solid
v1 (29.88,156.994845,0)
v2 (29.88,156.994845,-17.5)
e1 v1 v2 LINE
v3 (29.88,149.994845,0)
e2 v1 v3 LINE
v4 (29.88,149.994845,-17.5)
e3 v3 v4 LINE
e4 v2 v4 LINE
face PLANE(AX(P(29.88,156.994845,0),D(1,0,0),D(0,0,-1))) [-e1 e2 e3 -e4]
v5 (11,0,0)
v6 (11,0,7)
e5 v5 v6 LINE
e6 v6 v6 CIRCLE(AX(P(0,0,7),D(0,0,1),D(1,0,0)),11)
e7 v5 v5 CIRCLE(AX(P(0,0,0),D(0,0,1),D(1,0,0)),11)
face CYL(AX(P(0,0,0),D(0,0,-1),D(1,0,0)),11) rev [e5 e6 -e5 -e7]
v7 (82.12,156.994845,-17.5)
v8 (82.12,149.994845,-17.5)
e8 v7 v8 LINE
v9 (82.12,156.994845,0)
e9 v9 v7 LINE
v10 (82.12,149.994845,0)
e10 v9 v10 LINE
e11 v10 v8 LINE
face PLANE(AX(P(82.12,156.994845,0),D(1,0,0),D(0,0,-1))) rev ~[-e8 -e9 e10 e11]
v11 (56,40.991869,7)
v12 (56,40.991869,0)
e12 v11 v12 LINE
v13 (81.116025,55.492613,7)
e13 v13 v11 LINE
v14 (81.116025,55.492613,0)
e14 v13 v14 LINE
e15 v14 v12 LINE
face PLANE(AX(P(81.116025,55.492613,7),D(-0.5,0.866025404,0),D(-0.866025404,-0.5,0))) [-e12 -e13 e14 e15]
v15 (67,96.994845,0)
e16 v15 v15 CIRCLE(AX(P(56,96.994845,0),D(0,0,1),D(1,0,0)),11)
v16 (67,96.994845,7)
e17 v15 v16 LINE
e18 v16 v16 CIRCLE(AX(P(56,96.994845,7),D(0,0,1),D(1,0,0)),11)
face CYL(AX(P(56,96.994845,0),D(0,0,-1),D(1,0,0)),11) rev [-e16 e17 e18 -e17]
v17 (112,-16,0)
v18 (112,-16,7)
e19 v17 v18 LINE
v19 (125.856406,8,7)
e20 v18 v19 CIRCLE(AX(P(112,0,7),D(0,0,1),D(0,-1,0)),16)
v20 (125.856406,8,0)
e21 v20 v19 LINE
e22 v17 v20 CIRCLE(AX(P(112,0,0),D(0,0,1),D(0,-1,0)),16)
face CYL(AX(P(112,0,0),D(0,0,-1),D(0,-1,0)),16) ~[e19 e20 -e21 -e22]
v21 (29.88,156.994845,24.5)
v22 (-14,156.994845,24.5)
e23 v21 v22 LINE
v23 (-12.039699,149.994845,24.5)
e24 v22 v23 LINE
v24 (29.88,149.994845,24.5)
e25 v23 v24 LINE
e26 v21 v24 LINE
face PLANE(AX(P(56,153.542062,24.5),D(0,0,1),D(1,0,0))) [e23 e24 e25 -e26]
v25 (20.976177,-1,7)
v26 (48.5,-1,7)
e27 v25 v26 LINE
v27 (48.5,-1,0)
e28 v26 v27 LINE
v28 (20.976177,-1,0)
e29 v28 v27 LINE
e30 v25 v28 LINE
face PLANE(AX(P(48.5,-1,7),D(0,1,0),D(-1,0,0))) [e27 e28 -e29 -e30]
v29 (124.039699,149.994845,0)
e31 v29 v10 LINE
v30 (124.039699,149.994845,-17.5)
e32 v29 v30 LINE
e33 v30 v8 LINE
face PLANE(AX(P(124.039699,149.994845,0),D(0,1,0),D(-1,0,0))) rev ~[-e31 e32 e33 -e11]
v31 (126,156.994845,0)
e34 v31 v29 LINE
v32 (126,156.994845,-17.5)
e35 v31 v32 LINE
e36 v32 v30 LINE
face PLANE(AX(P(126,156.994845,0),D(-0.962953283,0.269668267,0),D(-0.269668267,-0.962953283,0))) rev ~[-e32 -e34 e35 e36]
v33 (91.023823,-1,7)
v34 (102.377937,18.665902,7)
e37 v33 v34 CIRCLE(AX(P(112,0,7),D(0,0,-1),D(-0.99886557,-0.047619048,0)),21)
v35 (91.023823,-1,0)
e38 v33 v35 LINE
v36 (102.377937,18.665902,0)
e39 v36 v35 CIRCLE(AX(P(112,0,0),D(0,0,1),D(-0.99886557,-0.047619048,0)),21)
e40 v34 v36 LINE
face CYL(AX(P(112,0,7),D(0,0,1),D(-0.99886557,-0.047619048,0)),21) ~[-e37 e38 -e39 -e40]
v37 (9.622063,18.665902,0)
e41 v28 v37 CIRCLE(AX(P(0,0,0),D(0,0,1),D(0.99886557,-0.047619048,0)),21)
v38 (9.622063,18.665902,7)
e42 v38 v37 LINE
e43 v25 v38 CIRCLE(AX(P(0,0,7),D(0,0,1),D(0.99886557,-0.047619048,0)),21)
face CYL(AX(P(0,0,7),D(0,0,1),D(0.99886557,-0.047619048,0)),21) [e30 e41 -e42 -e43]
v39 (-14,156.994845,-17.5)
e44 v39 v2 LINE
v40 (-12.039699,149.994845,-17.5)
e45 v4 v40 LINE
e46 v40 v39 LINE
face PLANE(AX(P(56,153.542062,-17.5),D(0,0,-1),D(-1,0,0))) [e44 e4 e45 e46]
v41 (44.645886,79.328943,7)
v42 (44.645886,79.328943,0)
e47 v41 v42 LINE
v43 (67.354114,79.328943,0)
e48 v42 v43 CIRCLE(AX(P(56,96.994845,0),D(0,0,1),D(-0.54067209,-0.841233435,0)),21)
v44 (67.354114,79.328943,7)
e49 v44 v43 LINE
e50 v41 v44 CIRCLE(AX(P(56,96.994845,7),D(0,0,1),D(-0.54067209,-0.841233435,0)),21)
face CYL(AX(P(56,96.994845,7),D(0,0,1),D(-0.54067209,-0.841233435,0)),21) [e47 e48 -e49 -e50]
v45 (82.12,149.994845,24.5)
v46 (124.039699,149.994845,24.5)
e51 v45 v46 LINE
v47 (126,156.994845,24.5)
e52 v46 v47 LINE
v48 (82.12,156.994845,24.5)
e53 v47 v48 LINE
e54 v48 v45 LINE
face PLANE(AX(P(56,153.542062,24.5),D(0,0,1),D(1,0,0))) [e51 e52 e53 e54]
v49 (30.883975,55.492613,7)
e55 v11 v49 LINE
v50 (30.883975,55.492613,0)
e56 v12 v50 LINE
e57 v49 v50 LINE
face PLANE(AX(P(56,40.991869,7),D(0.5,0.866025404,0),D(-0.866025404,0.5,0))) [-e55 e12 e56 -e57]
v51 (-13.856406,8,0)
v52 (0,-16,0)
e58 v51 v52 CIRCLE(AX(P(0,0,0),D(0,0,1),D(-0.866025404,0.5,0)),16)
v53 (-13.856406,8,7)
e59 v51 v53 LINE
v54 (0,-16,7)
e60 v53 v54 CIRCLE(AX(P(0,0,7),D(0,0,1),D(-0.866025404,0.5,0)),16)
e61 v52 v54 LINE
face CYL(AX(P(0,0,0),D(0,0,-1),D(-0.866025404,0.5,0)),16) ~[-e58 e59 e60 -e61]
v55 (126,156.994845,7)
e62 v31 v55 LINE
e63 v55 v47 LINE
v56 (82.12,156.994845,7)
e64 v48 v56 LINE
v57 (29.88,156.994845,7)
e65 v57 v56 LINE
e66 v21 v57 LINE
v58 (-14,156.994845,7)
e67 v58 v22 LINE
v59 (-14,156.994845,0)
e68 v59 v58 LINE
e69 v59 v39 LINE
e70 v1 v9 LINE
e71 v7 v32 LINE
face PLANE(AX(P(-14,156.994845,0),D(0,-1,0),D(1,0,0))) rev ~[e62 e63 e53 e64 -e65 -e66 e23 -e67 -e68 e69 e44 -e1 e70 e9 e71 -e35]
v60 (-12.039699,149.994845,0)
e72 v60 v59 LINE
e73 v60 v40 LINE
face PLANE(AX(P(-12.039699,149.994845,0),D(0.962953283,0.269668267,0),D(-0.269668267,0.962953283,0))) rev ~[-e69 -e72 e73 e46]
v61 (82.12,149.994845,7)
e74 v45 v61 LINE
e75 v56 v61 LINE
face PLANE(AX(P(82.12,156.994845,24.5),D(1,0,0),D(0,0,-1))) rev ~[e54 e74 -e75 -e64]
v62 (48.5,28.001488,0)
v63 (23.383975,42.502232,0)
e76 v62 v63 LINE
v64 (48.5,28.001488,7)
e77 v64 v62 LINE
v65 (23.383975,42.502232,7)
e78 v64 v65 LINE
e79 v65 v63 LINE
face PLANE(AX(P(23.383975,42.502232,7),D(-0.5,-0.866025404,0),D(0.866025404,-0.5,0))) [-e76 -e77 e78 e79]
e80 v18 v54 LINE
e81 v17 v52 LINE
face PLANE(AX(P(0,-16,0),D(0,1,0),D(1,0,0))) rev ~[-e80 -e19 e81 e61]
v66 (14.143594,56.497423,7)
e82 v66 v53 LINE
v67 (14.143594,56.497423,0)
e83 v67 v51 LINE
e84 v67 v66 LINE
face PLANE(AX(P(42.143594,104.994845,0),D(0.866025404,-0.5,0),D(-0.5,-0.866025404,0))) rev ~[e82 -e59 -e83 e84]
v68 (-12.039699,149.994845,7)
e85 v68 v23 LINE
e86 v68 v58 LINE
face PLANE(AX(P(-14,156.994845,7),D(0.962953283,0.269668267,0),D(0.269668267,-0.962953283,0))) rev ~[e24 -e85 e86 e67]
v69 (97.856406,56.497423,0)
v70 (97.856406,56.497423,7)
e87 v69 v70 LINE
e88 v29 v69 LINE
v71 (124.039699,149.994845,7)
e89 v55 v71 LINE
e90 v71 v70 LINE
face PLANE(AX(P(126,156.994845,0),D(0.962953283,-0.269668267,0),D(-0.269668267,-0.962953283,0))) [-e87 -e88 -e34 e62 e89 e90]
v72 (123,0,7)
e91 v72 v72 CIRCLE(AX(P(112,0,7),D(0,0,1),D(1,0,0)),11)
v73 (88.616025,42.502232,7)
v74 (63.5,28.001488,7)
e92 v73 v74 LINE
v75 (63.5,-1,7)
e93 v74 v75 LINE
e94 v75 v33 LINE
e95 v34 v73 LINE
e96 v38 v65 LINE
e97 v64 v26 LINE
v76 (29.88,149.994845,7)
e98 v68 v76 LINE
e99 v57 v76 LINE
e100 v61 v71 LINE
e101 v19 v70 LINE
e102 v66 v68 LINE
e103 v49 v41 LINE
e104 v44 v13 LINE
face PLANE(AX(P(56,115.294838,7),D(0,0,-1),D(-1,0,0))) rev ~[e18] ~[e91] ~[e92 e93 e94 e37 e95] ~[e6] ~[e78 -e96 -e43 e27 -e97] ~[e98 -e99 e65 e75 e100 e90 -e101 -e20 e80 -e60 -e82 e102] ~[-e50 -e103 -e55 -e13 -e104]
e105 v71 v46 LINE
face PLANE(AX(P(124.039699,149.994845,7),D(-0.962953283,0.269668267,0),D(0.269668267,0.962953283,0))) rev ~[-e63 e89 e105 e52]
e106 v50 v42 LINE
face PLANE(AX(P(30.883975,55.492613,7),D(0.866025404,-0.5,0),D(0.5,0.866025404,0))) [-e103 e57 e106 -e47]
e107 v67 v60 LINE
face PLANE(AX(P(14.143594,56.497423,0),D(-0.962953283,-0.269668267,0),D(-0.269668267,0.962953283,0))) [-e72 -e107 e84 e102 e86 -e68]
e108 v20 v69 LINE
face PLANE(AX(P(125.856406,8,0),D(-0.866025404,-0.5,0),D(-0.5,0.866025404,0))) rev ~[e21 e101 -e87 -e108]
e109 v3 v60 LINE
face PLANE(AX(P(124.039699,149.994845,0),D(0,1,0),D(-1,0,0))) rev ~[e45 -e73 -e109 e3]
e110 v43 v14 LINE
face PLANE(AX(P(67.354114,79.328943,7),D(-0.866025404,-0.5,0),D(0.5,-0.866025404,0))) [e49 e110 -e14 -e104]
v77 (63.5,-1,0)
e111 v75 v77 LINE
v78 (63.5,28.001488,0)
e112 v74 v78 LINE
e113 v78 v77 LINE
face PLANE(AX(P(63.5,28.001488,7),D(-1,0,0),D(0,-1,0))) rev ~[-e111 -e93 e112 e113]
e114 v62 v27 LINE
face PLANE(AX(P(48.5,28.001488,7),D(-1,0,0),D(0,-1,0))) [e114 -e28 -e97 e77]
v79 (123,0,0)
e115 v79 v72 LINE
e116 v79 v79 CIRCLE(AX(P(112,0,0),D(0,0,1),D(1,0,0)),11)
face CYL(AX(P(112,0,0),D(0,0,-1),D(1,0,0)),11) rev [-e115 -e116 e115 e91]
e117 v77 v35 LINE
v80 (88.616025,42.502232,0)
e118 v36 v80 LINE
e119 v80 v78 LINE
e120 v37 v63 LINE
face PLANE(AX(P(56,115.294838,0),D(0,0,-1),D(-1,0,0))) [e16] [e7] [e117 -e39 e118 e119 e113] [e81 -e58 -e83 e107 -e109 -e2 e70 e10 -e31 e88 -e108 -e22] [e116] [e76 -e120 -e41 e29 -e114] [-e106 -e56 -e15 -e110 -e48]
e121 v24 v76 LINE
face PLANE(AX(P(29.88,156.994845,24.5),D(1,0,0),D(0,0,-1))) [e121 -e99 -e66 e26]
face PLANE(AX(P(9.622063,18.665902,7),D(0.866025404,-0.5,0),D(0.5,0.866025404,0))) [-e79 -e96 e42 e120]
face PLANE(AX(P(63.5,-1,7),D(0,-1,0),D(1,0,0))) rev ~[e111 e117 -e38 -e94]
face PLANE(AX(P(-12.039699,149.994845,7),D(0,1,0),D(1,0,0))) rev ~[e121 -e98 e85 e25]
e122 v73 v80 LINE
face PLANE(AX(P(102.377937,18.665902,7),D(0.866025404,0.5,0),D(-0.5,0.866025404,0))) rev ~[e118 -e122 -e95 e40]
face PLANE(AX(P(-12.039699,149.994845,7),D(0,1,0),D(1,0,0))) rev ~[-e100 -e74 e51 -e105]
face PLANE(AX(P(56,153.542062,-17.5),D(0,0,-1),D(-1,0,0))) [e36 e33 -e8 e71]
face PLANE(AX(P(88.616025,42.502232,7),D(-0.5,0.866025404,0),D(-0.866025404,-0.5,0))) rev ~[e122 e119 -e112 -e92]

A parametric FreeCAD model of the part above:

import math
import FreeCAD as App
import Part
import Sketcher
from FreeCAD import Vector
Q = App.Units.Quantity

doc = App.newDocument("Part")
params = doc.addObject("Spreadsheet::Sheet", "Params")
for row, (alias, value) in enumerate([
    ("sketch1_diameter", "22 mm"),
    ("sketch1_radius", "16 mm"),
    ("sketch1_width", "112 mm"),
    ("pad1_length", "7 mm"),
    ("sketch2_radius", "21 mm"),
    ("sketch3_radius", "16 mm"),
    ("sketch3_width", "140 mm"),
    ("sketch3_length", "56 mm"),
    ("pad2_length", "7 mm"),
    ("sketch4_width", "140 mm"),
    ("pad3_length", "17.5 mm"),
    ("sketch5_width", "140 mm"),
    ("pad4_length", "17.5 mm"),
    ("sketch6_height", "17.5 mm"),
    ("sketch6_width", "52.24 mm"),
], start=1):
    params.set(f"A{row}", alias)
    params.set(f"B{row}", "=" + value)
    params.setAlias(f"B{row}", alias)

body = doc.addObject("PartDesign::Body", "Body")

sketch1 = doc.addObject("Sketcher::SketchObject", "Sketch")
body.addObject(sketch1)
sketch1.AttachmentSupport = (doc.XY_Plane, [""])
sketch1.MapMode = "FlatFace"
sketch1.addGeometry([
    Part.LineSegment(Vector(42, 105, 0), Vector(-14, 8, 0)),
    Part.ArcOfCircle(Part.Circle(Vector(0, 0, 0), Vector(0, 0, 1), 16), math.radians(150), math.radians(270)),
    Part.LineSegment(Vector(0, -16, 0), Vector(112, -16, 0)),
    Part.ArcOfCircle(Part.Circle(Vector(112, 0, 0), Vector(0, 0, 1), 16), math.radians(-90), math.radians(30)),
    Part.LineSegment(Vector(126, 8, 0), Vector(70, 105, 0)),
    Part.ArcOfCircle(Part.Circle(Vector(56, 97, 0), Vector(0, 0, 1), 16), math.radians(30), math.radians(150)),
    Part.Circle(Vector(0, 0, 0), Vector(0, 0, 1), 11),
    Part.Circle(Vector(112, 0, 0), Vector(0, 0, 1), 11),
    Part.Circle(Vector(56, 97, 0), Vector(0, 0, 1), 11),
], False)
sketch1.addConstraint([
    Sketcher.Constraint("Tangent", 0, 2, 1, 1),
    Sketcher.Constraint("Tangent", 1, 2, 2, 1),
    Sketcher.Constraint("Tangent", 2, 2, 3, 1),
    Sketcher.Constraint("Tangent", 3, 2, 4, 1),
    Sketcher.Constraint("Tangent", 4, 2, 5, 1),
    Sketcher.Constraint("Tangent", 5, 2, 0, 1),
    Sketcher.Constraint("Horizontal", 2),
    Sketcher.Constraint("Coincident", 1, 3, -1, 1),
    Sketcher.Constraint("Coincident", 6, 3, -1, 1),
    Sketcher.Constraint("Coincident", 7, 3, 3, 3),
    Sketcher.Constraint("Coincident", 8, 3, 5, 3),
    Sketcher.Constraint("Equal", 1, 3),
    Sketcher.Constraint("Equal", 3, 5),
    Sketcher.Constraint("Equal", 6, 7),
    Sketcher.Constraint("Equal", 7, 8),
    Sketcher.Constraint("Horizontal", 0, 2, 3, 2),
    Sketcher.Constraint("Diameter", 6, Q("22 mm")),
    Sketcher.Constraint("Radius", 1, Q("16 mm")),
    Sketcher.Constraint("DistanceX", 2, 1, 2, 2, Q("112 mm")),
    Sketcher.Constraint("Angle", 0, Q("-120 deg")),
])
sketch1.setExpression("Constraints[16]", "Params.sketch1_diameter")
sketch1.setExpression("Constraints[17]", "Params.sketch1_radius")
sketch1.setExpression("Constraints[18]", "Params.sketch1_width")
pad1 = doc.addObject("PartDesign::Pad", "Pad")
body.addObject(pad1)
pad1.Profile = sketch1
pad1.setExpression("Length", "Params.pad1_length")

sketch2 = doc.addObject("Sketcher::SketchObject", "Sketch001")
body.addObject(sketch2)
sketch2.AttachmentSupport = (doc.XY_Plane, [""])
sketch2.MapMode = "FlatFace"
sketch2.AttachmentOffset = App.Placement(Vector(0, 0, 7), App.Rotation())
sketch2.addGeometry([
    Part.LineSegment(Vector(23, 43, 0), Vector(10, 19, 0)),
    Part.ArcOfCircle(Part.Circle(Vector(0, 0, 0), Vector(0, 0, 1), 21), math.radians(-3), math.radians(63)),
    Part.LineSegment(Vector(21, -1, 0), Vector(48, -1, 0)),
    Part.LineSegment(Vector(48, -1, 0), Vector(48, 28, 0)),
    Part.LineSegment(Vector(48, 28, 0), Vector(23, 43, 0)),
    Part.LineSegment(Vector(64, -1, 0), Vector(91, -1, 0)),
    Part.ArcOfCircle(Part.Circle(Vector(112, 0, 0), Vector(0, 0, 1), 21), math.radians(117), math.radians(183)),
    Part.LineSegment(Vector(102, 19, 0), Vector(89, 43, 0)),
    Part.LineSegment(Vector(89, 43, 0), Vector(64, 28, 0)),
    Part.LineSegment(Vector(64, 28, 0), Vector(64, -1, 0)),
    Part.LineSegment(Vector(45, 79, 0), Vector(31, 55, 0)),
    Part.LineSegment(Vector(31, 55, 0), Vector(56, 41, 0)),
    Part.LineSegment(Vector(56, 41, 0), Vector(81, 55, 0)),
    Part.LineSegment(Vector(81, 55, 0), Vector(67, 79, 0)),
    Part.ArcOfCircle(Part.Circle(Vector(56, 97, 0), Vector(0, 0, 1), 21), math.radians(-123), math.radians(-57)),
], False)
sketch2.addConstraint([
    Sketcher.Constraint("Coincident", 0, 2, 1, 2),
    Sketcher.Constraint("Coincident", 1, 1, 2, 1),
    Sketcher.Constraint("Coincident", 2, 2, 3, 1),
    Sketcher.Constraint("Coincident", 3, 2, 4, 1),
    Sketcher.Constraint("Coincident", 4, 2, 0, 1),
    Sketcher.Constraint("Coincident", 5, 2, 6, 2),
    Sketcher.Constraint("Coincident", 6, 1, 7, 1),
    Sketcher.Constraint("Coincident", 7, 2, 8, 1),
    Sketcher.Constraint("Coincident", 8, 2, 9, 1),
    Sketcher.Constraint("Coincident", 9, 2, 5, 1),
    Sketcher.Constraint("Coincident", 10, 2, 11, 1),
    Sketcher.Constraint("Coincident", 11, 2, 12, 1),
    Sketcher.Constraint("Coincident", 12, 2, 13, 1),
    Sketcher.Constraint("Coincident", 13, 2, 14, 2),
    Sketcher.Constraint("Coincident", 14, 1, 10, 1),
    Sketcher.Constraint("Horizontal", 2),
    Sketcher.Constraint("Vertical", 3),
    Sketcher.Constraint("Horizontal", 5),
    Sketcher.Constraint("Vertical", 9),
    Sketcher.Constraint("Coincident", 1, 3, -1, 1),
    Sketcher.Constraint("Equal", 1, 6),
    Sketcher.Constraint("Equal", 6, 14),
    Sketcher.Constraint("PointOnObject", 6, 3, -1),
    Sketcher.Constraint("Perpendicular", 0, 4),
    Sketcher.Constraint("Perpendicular", 7, 8),
    Sketcher.Constraint("Perpendicular", 4, 10),
    Sketcher.Constraint("Perpendicular", 10, 11),
    Sketcher.Constraint("Parallel", 8, 12),
    Sketcher.Constraint("Perpendicular", 12, 13),
    Sketcher.Constraint("Horizontal", 2, 2, 5, 2),
    Sketcher.Constraint("Horizontal", 0, 2, 6, 1),
    Sketcher.Constraint("Horizontal", 4, 2, 7, 2),
    Sketcher.Constraint("Horizontal", 3, 2, 8, 2),
    Sketcher.Constraint("Horizontal", 10, 2, 12, 2),
    Sketcher.Constraint("Horizontal", 13, 2, 14, 1),
    Sketcher.Constraint("Vertical", 14, 3, 11, 2),
    Sketcher.Constraint("Equal", 7, 10),
    Sketcher.Constraint("Equal", 8, 11),
    Sketcher.Constraint("Radius", 1, Q("21 mm")),
    Sketcher.Constraint("Angle", 0, Q("-120 deg")),
    Sketcher.Constraint("DistanceX", -1, 1, 6, 3, Q("112 mm")),
    Sketcher.Constraint("DistanceX", -1, 1, 14, 3, Q("56 mm")),
    Sketcher.Constraint("DistanceY", 1, 1, -1, 1, Q("1 mm")),
    Sketcher.Constraint("DistanceX", 3, 2, 8, 2, Q("15 mm")),
    Sketcher.Constraint("DistanceY", 3, 1, 3, 2, Q("29.001488 mm")),
    Sketcher.Constraint("Distance", 4, Q("29.001488 mm")),
    Sketcher.Constraint("DistanceY", -1, 1, 11, 2, Q("40.991869 mm")),
])
sketch2.setExpression("Constraints[38]", "Params.sketch2_radius")
pocket1 = doc.addObject("PartDesign::Pocket", "Pocket")
body.addObject(pocket1)
pocket1.Profile = sketch2
pocket1.Type = "ThroughAll"

sketch3 = doc.addObject("Sketcher::SketchObject", "Sketch002")
body.addObject(sketch3)
sketch3.AttachmentSupport = (doc.XY_Plane, [""])
sketch3.MapMode = "FlatFace"
sketch3.addGeometry([
    Part.LineSegment(Vector(126, 157, 0), Vector(-14, 157, 0)),
    Part.LineSegment(Vector(-14, 157, 0), Vector(14, 56, 0)),
    Part.LineSegment(Vector(14, 56, 0), Vector(42, 105, 0)),
    Part.ArcOfCircle(Part.Circle(Vector(56, 97, 0), Vector(0, 0, 1), 16), math.radians(30), math.radians(150)),
    Part.LineSegment(Vector(70, 105, 0), Vector(98, 56, 0)),
    Part.LineSegment(Vector(98, 56, 0), Vector(126, 157, 0)),
], False)
sketch3.addConstraint([
    Sketcher.Constraint("Coincident", 0, 2, 1, 1),
    Sketcher.Constraint("Coincident", 1, 2, 2, 1),
    Sketcher.Constraint("Tangent", 2, 2, 3, 2),
    Sketcher.Constraint("Tangent", 3, 1, 4, 1),
    Sketcher.Constraint("Coincident", 4, 2, 5, 1),
    Sketcher.Constraint("Coincident", 5, 2, 0, 1),
    Sketcher.Constraint("Horizontal", 0),
    Sketcher.Constraint("Horizontal", 2, 2, 3, 1),
    Sketcher.Constraint("Horizontal", 1, 2, 4, 2),
    Sketcher.Constraint("Equal", 1, 5),
    Sketcher.Constraint("Radius", 3, Q("16 mm")),
    Sketcher.Constraint("DistanceX", 0, 2, 0, 1, Q("140 mm")),
    Sketcher.Constraint("Angle", 2, Q("60 deg")),
    Sketcher.Constraint("Distance", 2, Q("56 mm")),
    Sketcher.Constraint("DistanceX", -1, 1, 3, 3, Q("56 mm")),
    Sketcher.Constraint("DistanceY", 3, 3, 0, 2, Q("60 mm")),
    Sketcher.Constraint("DistanceY", -1, 1, 3, 3, Q("96.994845 mm")),
])
sketch3.setExpression("Constraints[10]", "Params.sketch3_radius")
sketch3.setExpression("Constraints[11]", "Params.sketch3_width")
sketch3.setExpression("Constraints[13]", "Params.sketch3_length")
pad2 = doc.addObject("PartDesign::Pad", "Pad001")
body.addObject(pad2)
pad2.Profile = sketch3
pad2.setExpression("Length", "Params.pad2_length")

sketch4 = doc.addObject("Sketcher::SketchObject", "Sketch003")
body.addObject(sketch4)
sketch4.AttachmentSupport = (doc.XY_Plane, [""])
sketch4.MapMode = "FlatFace"
sketch4.AttachmentOffset = App.Placement(Vector(0, 0, 7), App.Rotation())
sketch4.addGeometry([
    Part.LineSegment(Vector(-12, 150, 0), Vector(124, 150, 0)),
    Part.LineSegment(Vector(124, 150, 0), Vector(126, 157, 0)),
    Part.LineSegment(Vector(126, 157, 0), Vector(-14, 157, 0)),
    Part.LineSegment(Vector(-14, 157, 0), Vector(-12, 150, 0)),
], False)
sketch4.addConstraint([
    Sketcher.Constraint("Coincident", 0, 2, 1, 1),
    Sketcher.Constraint("Coincident", 1, 2, 2, 1),
    Sketcher.Constraint("Coincident", 2, 2, 3, 1),
    Sketcher.Constraint("Coincident", 3, 2, 0, 1),
    Sketcher.Constraint("Horizontal", 0),
    Sketcher.Constraint("Horizontal", 2),
    Sketcher.Constraint("Equal", 1, 3),
    Sketcher.Constraint("DistanceX", 2, 2, 2, 1, Q("140 mm")),
    Sketcher.Constraint("DistanceX", -1, 1, 1, 2, Q("126 mm")),
    Sketcher.Constraint("DistanceY", 0, 2, 1, 2, Q("7 mm")),
    Sketcher.Constraint("DistanceX", 0, 1, 0, 2, Q("136.079399 mm")),
    Sketcher.Constraint("DistanceY", -1, 1, 0, 2, Q("149.994845 mm")),
])
sketch4.setExpression("Constraints[7]", "Params.sketch4_width")
pad3 = doc.addObject("PartDesign::Pad", "Pad002")
body.addObject(pad3)
pad3.Profile = sketch4
pad3.setExpression("Length", "Params.pad3_length")

sketch5 = doc.addObject("Sketcher::SketchObject", "Sketch004")
body.addObject(sketch5)
sketch5.AttachmentSupport = (doc.XY_Plane, [""])
sketch5.MapMode = "FlatFace"
sketch5.addGeometry([
    Part.LineSegment(Vector(124, 150, 0), Vector(-12, 150, 0)),
    Part.LineSegment(Vector(-12, 150, 0), Vector(-14, 157, 0)),
    Part.LineSegment(Vector(-14, 157, 0), Vector(126, 157, 0)),
    Part.LineSegment(Vector(126, 157, 0), Vector(124, 150, 0)),
], False)
sketch5.addConstraint([
    Sketcher.Constraint("Coincident", 0, 2, 1, 1),
    Sketcher.Constraint("Coincident", 1, 2, 2, 1),
    Sketcher.Constraint("Coincident", 2, 2, 3, 1),
    Sketcher.Constraint("Coincident", 3, 2, 0, 1),
    Sketcher.Constraint("Horizontal", 0),
    Sketcher.Constraint("Horizontal", 2),
    Sketcher.Constraint("Equal", 1, 3),
    Sketcher.Constraint("DistanceX", 2, 1, 2, 2, Q("140 mm")),
    Sketcher.Constraint("DistanceX", 1, 2, -1, 1, Q("14 mm")),
    Sketcher.Constraint("DistanceY", 0, 2, 1, 2, Q("7 mm")),
    Sketcher.Constraint("DistanceX", 0, 2, 0, 1, Q("136.079399 mm")),
    Sketcher.Constraint("DistanceY", -1, 1, 0, 2, Q("149.994845 mm")),
])
sketch5.setExpression("Constraints[7]", "Params.sketch5_width")
pad4 = doc.addObject("PartDesign::Pad", "Pad003")
body.addObject(pad4)
pad4.Profile = sketch5
pad4.setExpression("Length", "Params.pad4_length")
pad4.Reversed = True

sketch6 = doc.addObject("Sketcher::SketchObject", "Sketch005")
body.addObject(sketch6)
sketch6.AttachmentSupport = (doc.XZ_Plane, [""])
sketch6.MapMode = "FlatFace"
sketch6.AttachmentOffset = App.Placement(Vector(0, 0, -156.994845), App.Rotation())
sketch6.addGeometry([
    Part.LineSegment(Vector(30, 7, 0), Vector(30, 24, 0)),
    Part.LineSegment(Vector(30, 24, 0), Vector(82, 24, 0)),
    Part.LineSegment(Vector(82, 24, 0), Vector(82, 7, 0)),
    Part.LineSegment(Vector(82, 7, 0), Vector(30, 7, 0)),
    Part.LineSegment(Vector(30, -18, 0), Vector(30, 0, 0)),
    Part.LineSegment(Vector(30, 0, 0), Vector(82, 0, 0)),
    Part.LineSegment(Vector(82, 0, 0), Vector(82, -18, 0)),
    Part.LineSegment(Vector(82, -18, 0), Vector(30, -18, 0)),
], False)
sketch6.addConstraint([
    Sketcher.Constraint("Coincident", 0, 2, 1, 1),
    Sketcher.Constraint("Coincident", 1, 2, 2, 1),
    Sketcher.Constraint("Coincident", 2, 2, 3, 1),
    Sketcher.Constraint("Coincident", 3, 2, 0, 1),
    Sketcher.Constraint("Coincident", 4, 2, 5, 1),
    Sketcher.Constraint("Coincident", 5, 2, 6, 1),
    Sketcher.Constraint("Coincident", 6, 2, 7, 1),
    Sketcher.Constraint("Coincident", 7, 2, 4, 1),
    Sketcher.Constraint("Vertical", 0),
    Sketcher.Constraint("Horizontal", 1),
    Sketcher.Constraint("Vertical", 2),
    Sketcher.Constraint("Horizontal", 3),
    Sketcher.Constraint("Vertical", 4),
    Sketcher.Constraint("Horizontal", 5),
    Sketcher.Constraint("Vertical", 6),
    Sketcher.Constraint("Horizontal", 7),
    Sketcher.Constraint("PointOnObject", 4, 2, -1),
    Sketcher.Constraint("Vertical", 3, 2, 4, 2),
    Sketcher.Constraint("Vertical", 2, 2, 5, 2),
    Sketcher.Constraint("Equal", 2, 4),
    Sketcher.Constraint("DistanceY", 0, 1, 0, 2, Q("17.5 mm")),
    Sketcher.Constraint("DistanceY", -1, 1, 2, 2, Q("7 mm")),
    Sketcher.Constraint("DistanceX", 1, 1, 1, 2, Q("52.24 mm")),
    Sketcher.Constraint("DistanceX", -1, 1, 0, 2, Q("29.88 mm")),
])
sketch6.setExpression("Constraints[20]", "Params.sketch6_height")
sketch6.setExpression("Constraints[22]", "Params.sketch6_width")
pocket2 = doc.addObject("PartDesign::Pocket", "Pocket001")
body.addObject(pocket2)
pocket2.Profile = sketch6
pocket2.Type = "ThroughAll"
pocket2.Reversed = True

doc.recompute()
